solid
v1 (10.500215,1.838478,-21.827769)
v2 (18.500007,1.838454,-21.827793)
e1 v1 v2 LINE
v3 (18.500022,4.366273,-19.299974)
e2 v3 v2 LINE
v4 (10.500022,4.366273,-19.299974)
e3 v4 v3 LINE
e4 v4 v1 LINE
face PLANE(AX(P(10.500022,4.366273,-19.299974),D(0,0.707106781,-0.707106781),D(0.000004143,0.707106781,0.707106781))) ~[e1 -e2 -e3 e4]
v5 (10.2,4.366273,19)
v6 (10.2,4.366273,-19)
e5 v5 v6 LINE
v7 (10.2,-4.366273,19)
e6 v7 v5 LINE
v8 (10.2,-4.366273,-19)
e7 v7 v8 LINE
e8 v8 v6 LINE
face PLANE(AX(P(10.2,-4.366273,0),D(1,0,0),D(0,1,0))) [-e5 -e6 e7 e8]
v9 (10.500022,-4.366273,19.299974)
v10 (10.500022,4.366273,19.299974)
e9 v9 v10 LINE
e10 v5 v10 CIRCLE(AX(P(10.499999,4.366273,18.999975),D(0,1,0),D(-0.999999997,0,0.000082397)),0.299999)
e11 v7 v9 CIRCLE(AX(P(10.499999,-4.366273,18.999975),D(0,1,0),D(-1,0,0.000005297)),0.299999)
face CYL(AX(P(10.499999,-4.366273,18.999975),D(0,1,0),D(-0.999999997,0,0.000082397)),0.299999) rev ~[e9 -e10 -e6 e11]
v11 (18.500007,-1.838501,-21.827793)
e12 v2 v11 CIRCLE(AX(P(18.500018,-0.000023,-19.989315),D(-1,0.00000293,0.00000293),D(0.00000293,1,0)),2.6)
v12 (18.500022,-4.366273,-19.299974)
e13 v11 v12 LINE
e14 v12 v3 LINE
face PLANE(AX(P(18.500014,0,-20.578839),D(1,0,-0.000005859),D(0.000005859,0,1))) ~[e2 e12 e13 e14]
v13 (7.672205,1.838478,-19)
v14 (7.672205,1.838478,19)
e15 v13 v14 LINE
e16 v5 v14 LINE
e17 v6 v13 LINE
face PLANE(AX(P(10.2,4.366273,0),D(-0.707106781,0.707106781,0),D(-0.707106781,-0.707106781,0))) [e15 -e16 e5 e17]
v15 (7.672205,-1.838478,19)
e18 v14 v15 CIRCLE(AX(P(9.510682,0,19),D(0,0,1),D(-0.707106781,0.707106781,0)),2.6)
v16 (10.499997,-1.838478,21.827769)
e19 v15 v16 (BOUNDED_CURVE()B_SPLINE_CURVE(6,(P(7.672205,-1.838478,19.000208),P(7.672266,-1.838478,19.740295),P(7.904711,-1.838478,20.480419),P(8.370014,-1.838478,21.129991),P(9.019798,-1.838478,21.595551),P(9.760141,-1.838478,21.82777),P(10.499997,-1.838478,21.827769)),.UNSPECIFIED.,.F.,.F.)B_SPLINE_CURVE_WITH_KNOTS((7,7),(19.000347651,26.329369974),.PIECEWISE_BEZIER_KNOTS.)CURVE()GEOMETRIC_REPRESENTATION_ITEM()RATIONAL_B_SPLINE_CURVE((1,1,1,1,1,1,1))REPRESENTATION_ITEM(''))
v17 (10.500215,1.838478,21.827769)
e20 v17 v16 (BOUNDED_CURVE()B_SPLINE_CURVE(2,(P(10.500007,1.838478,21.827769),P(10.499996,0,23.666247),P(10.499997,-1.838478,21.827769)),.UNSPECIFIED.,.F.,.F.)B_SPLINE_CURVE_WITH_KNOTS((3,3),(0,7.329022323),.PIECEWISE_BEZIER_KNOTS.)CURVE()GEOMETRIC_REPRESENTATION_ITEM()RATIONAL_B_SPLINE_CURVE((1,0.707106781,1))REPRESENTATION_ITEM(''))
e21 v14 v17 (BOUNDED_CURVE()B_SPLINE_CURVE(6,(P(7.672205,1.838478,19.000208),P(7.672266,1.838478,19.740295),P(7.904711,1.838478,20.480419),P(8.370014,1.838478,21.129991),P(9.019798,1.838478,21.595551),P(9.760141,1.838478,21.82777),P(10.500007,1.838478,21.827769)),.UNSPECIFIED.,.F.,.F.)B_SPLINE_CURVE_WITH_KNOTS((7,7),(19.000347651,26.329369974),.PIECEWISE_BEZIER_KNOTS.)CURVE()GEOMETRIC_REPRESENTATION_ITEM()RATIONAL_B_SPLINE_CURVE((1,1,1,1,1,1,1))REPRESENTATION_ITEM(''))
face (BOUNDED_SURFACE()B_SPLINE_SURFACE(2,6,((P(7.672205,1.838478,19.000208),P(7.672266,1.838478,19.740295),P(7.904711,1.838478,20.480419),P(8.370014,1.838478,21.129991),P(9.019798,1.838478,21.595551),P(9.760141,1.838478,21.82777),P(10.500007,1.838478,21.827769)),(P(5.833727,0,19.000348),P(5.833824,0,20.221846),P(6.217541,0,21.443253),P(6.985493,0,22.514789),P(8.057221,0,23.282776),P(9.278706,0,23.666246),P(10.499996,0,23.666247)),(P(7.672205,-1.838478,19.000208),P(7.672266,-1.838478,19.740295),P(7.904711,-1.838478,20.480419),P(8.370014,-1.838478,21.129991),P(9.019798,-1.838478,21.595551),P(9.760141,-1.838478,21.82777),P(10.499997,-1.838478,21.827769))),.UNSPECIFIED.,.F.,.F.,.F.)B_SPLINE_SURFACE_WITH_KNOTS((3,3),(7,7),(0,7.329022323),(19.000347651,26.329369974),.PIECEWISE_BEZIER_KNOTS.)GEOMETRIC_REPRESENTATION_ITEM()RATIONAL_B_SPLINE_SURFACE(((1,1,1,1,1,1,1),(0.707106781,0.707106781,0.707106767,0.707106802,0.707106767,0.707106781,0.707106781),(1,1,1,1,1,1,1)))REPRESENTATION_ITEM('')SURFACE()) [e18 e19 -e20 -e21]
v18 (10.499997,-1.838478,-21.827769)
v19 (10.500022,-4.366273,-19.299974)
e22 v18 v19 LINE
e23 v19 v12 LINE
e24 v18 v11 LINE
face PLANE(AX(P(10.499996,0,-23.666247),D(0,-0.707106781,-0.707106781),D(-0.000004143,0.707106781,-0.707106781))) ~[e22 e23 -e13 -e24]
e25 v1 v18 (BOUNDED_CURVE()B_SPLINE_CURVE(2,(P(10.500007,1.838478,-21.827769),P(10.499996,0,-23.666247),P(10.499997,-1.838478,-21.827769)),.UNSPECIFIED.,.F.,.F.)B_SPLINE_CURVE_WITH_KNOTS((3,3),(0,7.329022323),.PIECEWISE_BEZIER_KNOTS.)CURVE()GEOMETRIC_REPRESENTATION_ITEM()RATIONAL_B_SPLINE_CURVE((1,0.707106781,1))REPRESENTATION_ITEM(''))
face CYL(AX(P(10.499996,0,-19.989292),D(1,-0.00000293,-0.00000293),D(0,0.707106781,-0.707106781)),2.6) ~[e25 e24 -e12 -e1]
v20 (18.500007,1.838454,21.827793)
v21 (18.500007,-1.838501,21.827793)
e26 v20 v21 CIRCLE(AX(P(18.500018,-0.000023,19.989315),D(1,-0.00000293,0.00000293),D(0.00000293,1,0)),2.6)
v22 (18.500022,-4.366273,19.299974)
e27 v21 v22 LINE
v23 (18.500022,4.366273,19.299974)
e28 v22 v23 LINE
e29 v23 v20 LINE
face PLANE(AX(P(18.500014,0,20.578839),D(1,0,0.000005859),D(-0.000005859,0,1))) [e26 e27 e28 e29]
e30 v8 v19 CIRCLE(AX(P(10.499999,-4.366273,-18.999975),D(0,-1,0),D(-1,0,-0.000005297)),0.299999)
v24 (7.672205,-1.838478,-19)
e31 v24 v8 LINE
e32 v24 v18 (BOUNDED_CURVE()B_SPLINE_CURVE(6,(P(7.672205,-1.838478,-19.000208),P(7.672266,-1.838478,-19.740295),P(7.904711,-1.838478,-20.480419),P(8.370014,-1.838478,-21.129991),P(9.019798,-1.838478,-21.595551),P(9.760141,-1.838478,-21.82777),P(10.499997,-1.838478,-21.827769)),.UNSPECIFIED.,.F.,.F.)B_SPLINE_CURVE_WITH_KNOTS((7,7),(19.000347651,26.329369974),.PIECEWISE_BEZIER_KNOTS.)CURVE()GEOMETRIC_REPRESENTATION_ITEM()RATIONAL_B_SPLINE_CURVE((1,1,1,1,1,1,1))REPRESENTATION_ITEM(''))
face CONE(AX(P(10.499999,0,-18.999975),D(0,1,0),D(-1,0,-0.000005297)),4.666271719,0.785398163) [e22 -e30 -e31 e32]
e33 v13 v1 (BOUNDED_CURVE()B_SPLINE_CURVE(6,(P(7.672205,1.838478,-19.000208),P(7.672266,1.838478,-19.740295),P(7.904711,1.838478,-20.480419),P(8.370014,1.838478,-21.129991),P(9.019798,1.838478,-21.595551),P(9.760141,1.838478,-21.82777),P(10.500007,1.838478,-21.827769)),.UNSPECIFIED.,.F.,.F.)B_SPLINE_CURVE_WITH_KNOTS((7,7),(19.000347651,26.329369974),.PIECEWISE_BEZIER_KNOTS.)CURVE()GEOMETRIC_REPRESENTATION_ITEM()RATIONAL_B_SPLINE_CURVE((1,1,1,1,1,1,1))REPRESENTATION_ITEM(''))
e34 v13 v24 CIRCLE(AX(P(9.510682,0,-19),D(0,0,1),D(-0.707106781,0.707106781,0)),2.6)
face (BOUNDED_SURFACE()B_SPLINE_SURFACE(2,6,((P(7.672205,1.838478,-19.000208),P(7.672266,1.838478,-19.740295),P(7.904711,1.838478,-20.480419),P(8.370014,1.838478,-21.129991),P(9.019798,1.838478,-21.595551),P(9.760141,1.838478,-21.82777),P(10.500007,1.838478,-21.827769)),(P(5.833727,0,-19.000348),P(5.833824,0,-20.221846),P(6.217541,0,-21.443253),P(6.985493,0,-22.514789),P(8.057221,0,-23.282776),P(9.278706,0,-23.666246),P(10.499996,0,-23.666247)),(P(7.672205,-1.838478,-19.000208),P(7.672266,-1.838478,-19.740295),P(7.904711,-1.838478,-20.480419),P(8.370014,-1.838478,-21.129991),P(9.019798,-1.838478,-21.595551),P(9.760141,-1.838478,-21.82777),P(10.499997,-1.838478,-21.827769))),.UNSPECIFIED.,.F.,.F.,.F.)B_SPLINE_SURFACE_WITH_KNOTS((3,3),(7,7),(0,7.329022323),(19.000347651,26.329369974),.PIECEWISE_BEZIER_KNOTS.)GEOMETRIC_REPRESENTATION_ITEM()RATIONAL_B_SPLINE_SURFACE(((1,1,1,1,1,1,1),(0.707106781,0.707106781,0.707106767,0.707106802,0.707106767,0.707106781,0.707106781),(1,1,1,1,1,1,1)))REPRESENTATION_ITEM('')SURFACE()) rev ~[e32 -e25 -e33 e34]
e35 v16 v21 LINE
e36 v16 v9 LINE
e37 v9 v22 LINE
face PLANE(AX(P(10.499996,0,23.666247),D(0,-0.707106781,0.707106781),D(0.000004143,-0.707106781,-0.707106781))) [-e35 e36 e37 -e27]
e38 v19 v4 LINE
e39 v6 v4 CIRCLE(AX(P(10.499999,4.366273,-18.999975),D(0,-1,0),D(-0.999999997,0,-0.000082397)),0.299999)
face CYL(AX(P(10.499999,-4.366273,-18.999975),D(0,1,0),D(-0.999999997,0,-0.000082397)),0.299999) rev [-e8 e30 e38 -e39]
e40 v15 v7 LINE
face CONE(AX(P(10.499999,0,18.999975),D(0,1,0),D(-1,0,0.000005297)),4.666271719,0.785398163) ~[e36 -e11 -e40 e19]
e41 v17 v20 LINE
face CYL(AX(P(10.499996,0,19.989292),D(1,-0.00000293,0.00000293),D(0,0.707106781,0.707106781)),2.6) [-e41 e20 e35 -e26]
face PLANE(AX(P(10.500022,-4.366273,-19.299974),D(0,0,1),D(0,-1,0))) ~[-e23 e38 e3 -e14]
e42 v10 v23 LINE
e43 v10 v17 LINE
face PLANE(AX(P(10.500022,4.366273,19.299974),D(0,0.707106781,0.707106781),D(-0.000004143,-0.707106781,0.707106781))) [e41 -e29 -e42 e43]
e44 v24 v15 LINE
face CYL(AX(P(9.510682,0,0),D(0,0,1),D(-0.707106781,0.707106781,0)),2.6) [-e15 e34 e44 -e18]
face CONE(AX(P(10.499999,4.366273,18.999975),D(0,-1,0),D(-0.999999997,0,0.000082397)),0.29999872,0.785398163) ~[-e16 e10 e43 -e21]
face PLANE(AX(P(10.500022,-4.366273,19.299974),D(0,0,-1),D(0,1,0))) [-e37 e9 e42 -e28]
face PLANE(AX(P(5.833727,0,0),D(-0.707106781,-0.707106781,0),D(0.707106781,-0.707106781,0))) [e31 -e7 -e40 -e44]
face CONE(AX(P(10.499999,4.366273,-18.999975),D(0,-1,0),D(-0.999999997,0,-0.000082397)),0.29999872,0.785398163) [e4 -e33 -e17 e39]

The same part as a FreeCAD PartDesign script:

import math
import FreeCAD as App
import Part
import Sketcher

V = App.Vector
Q = App.Units.Quantity


def edges_at(feature, points):
    """Names of the edges that pass closest to the given points."""
    edges = feature.Shape.Edges
    near = lambda p: min(range(len(edges)), key=lambda i: edges[i].distToShape(Part.Vertex(*p))[0])
    return sorted({f"Edge{near(p) + 1}" for p in points})


def add_polygon(sketch, points):
    """Adds a closed chain of lines whose ends are joined by coincident constraints."""
    first, n = sketch.GeometryCount, len(points)
    for a, b in zip(points, points[1:] + points[:1]):
        sketch.addGeometry(Part.LineSegment(App.Vector(*a, 0), App.Vector(*b, 0)), False)
    for i in range(n):
        sketch.addConstraint(Sketcher.Constraint("Coincident", first + i, 2, first + (i + 1) % n, 1))

doc = App.newDocument("Part")
body = doc.addObject("PartDesign::Body", "Body")

# Sketch on XY plane
sketch1 = body.newObject("Sketcher::SketchObject", "Sketch")
sketch1.AttachmentSupport = (doc.getObject("XY_Plane"), [""])
sketch1.MapMode = "FlatFace"
add_polygon(sketch1, [(10.2, 4.366273), (5.833727, 0), (10.2, -4.366273)])  # lines 0-2
sketch1.addConstraint([
    Sketcher.Constraint("Vertical", 2),
    Sketcher.Constraint("PointOnObject", 0, 2, -1),
    Sketcher.Constraint("Perpendicular", 0, 1),
    Sketcher.Constraint("Equal", 0, 1),
    Sketcher.Constraint("DistanceX", -1, 1, 1, 2, Q("10.2 mm")),
    Sketcher.Constraint("DistanceY", 2, 1, 2, 2, Q("8.732546 mm")),
])

# Sketch on XZ plane
sketch2 = body.newObject("Sketcher::SketchObject", "Sketch001")
sketch2.AttachmentSupport = (doc.getObject("XZ_Plane"), [""])
sketch2.MapMode = "FlatFace"
sketch2.addGeometry([
    Part.LineSegment(V(6.5, 0, 0), V(6.5, 19, 0)),
    Part.ArcOfCircle(Part.Circle(V(10.499999, 18.999975, 0), V(0, 0, 1), 3.999999), math.radians(89.999982), math.radians(179.999646)),
    Part.LineSegment(V(10.5, 22.999974, 0), V(18.5, 22.999974, 0)),
], False)
sketch2.addConstraint([
    Sketcher.Constraint("Coincident", 0, 2, 1, 2),
    Sketcher.Constraint("Tangent", 1, 1, 2, 1),
    Sketcher.Constraint("Vertical", 0),
    Sketcher.Constraint("Horizontal", 2),
    Sketcher.Constraint("PointOnObject", 0, 1, -1),
    Sketcher.Constraint("Radius", 1, Q("3.999999 mm")),
    Sketcher.Constraint("DistanceX", 2, 1, 2, 2, Q("8 mm")),
    Sketcher.Constraint("DistanceY", 0, 1, 0, 2, Q("19 mm")),
    Sketcher.Constraint("DistanceX", -1, 1, 1, 3, Q("10.499999 mm")),
    Sketcher.Constraint("DistanceY", -1, 1, 1, 3, Q("18.999975 mm")),
])
doc.recompute()

additivepipe = body.newObject("PartDesign::AdditivePipe", "AdditivePipe")
additivepipe.Profile = sketch1
additivepipe.Spine = (sketch2, ["Edge1", "Edge2", "Edge3"])
doc.recompute()

fillet = body.newObject("PartDesign::Fillet", "Fillet")
fillet.Base = (additivepipe, edges_at(additivepipe, [(14.5, 0, 23.666)]))
fillet.Radius = 2.6
body2 = doc.addObject("PartDesign::Body", "Body001")
doc.recompute()

mirroring = doc.addObject("Part::Mirroring", "Mirroring")
mirroring.Source = body
mirroring.Base = V(0, 0, 0)
mirroring.Normal = V(0, 0, 1)
body2.BaseFeature = mirroring
doc.recompute()

boolean = body2.newObject("PartDesign::Boolean", "Boolean")
boolean.Type = "Fuse"
boolean.addObjects([body])
mirroring.Visibility = False

doc.recompute()
